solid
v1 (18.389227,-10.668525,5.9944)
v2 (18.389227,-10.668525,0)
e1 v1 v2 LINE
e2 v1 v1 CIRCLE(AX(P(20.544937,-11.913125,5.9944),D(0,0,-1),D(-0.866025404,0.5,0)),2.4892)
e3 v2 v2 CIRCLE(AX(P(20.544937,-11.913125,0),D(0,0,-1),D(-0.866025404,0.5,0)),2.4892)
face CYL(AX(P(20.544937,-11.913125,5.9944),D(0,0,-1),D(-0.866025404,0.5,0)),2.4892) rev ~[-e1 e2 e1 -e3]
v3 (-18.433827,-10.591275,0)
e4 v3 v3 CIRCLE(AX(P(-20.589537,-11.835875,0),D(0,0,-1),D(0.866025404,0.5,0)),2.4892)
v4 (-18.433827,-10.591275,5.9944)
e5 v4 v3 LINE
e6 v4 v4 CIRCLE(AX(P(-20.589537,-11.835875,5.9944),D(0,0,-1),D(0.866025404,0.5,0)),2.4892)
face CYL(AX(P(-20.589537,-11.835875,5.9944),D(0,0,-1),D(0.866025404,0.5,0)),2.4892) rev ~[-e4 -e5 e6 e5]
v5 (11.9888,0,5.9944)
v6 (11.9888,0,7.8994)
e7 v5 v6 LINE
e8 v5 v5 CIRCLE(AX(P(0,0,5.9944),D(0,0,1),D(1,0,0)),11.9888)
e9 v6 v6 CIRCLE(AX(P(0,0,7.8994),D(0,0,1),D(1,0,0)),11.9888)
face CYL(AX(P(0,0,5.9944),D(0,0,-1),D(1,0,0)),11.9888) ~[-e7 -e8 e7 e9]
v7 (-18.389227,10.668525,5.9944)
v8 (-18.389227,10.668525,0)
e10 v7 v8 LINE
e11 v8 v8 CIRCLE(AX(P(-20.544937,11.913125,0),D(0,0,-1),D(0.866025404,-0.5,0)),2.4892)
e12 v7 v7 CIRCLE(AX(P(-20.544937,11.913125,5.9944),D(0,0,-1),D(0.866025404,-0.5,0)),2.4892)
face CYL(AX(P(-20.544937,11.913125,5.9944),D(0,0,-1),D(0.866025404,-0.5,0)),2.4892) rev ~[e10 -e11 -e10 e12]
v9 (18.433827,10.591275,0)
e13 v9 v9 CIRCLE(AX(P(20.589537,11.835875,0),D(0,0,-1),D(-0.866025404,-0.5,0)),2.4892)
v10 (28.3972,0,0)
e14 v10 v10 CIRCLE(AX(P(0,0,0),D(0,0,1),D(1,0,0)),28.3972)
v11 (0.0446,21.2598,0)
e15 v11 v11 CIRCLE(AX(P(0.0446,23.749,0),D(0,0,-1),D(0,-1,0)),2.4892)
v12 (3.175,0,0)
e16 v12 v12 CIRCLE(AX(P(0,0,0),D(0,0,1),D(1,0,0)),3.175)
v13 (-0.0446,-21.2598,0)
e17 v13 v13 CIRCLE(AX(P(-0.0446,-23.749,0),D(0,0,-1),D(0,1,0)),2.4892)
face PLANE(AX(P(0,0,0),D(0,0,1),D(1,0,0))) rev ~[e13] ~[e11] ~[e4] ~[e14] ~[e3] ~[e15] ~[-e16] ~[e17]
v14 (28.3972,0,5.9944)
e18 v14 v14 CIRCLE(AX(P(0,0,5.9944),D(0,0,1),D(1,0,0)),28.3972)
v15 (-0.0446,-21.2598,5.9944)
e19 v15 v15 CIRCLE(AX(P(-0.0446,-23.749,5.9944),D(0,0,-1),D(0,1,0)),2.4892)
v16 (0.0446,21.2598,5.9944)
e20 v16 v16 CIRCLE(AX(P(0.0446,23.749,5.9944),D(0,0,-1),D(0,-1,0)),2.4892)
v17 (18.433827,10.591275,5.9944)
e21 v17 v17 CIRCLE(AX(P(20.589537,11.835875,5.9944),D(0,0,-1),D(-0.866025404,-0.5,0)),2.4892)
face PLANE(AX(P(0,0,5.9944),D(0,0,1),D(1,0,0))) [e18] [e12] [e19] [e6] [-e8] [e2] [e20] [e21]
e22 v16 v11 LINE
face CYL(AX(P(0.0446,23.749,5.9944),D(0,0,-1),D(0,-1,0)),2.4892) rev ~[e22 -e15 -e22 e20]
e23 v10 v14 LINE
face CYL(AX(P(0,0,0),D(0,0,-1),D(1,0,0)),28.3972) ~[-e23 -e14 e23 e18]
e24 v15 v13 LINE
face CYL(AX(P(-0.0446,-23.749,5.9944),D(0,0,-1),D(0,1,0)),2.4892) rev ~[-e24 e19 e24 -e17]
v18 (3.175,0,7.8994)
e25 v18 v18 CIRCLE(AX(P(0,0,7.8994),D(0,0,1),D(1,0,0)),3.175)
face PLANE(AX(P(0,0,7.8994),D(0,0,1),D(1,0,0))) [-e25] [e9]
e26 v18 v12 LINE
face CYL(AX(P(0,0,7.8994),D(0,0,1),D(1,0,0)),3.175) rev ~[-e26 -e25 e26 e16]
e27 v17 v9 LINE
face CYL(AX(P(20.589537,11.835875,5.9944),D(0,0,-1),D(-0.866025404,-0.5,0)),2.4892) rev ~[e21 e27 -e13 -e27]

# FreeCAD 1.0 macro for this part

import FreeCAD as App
import Part
import Sketcher

V = App.Vector
Q = App.Units.Quantity

doc = App.newDocument("Part")
params = doc.addObject("Spreadsheet::Sheet", "Params")
for row, (alias, value) in enumerate([
    ("sketch1_diameter", "2.236 in"),
    ("pad1_length", "0.236 in"),
    ("sketch2_diameter", "0.944 in"),
    ("pad2_length", "0.075 in"),
    ("sketch3_diameter", "0.25 in"),
    ("pocket1_length", "1 in"),
    ("sketch4_diameter", "0.196 in"),
    ("hole_diameter", "0.196 in"),
    ("hole_depth", "0.75 in"),
], start=1):
    params.set(f"A{row}", alias)
    params.set(f"B{row}", "=" + value)
    params.setAlias(f"B{row}", alias)

body = doc.addObject("PartDesign::Body", "Body")

# Sketch on XY plane
sketch1 = body.newObject("Sketcher::SketchObject", "Sketch")
sketch1.AttachmentSupport = (doc.getObject("XY_Plane"), [""])
sketch1.MapMode = "FlatFace"
sketch1.addGeometry(Part.Circle(V(0, 0, 0), V(0, 0, 1), 28), False)
sketch1.addConstraint([
    Sketcher.Constraint("Coincident", 0, 3, -1, 1),
    Sketcher.Constraint("Diameter", 0, Q("2.236 in")),
])
sketch1.setExpression("Constraints[1]", "Params.sketch1_diameter")
pad1 = body.newObject("PartDesign::Pad", "Pad")
pad1.Profile = sketch1
pad1.setExpression("Length", "Params.pad1_length")

# Sketch on XY plane
sketch2 = body.newObject("Sketcher::SketchObject", "Sketch001")
sketch2.AttachmentSupport = (doc.getObject("XY_Plane"), [""])
sketch2.MapMode = "FlatFace"
sketch2.AttachmentOffset = App.Placement(V(0, 0, 0.236 * 25.4), App.Rotation())
sketch2.addGeometry(Part.Circle(V(0, 0, 0), V(0, 0, 1), 12), False)
sketch2.addConstraint([
    Sketcher.Constraint("Coincident", 0, 3, -1, 1),
    Sketcher.Constraint("Diameter", 0, Q("0.944 in")),
])
sketch2.setExpression("Constraints[1]", "Params.sketch2_diameter")
pad2 = body.newObject("PartDesign::Pad", "Pad001")
pad2.Profile = sketch2
pad2.setExpression("Length", "Params.pad2_length")

# Sketch on XY plane
sketch3 = body.newObject("Sketcher::SketchObject", "Sketch002")
sketch3.AttachmentSupport = (doc.getObject("XY_Plane"), [""])
sketch3.MapMode = "FlatFace"
sketch3.AttachmentOffset = App.Placement(V(0, 0, 0.311 * 25.4), App.Rotation())
sketch3.addGeometry(Part.Circle(V(0, 0, 0), V(0, 0, 1), 3.2), False)
sketch3.addConstraint([
    Sketcher.Constraint("Coincident", 0, 3, -1, 1),
    Sketcher.Constraint("Diameter", 0, Q("0.25 in")),
])
sketch3.setExpression("Constraints[1]", "Params.sketch3_diameter")
pocket1 = body.newObject("PartDesign::Pocket", "Pocket")
pocket1.Profile = sketch3
pocket1.setExpression("Length", "Params.pocket1_length")

# Sketch on XY plane
sketch4 = body.newObject("Sketcher::SketchObject", "Sketch003")
sketch4.AttachmentSupport = (doc.getObject("XY_Plane"), [""])
sketch4.MapMode = "FlatFace"
sketch4.AttachmentOffset = App.Placement(V(0, 0, 0.236 * 25.4), App.Rotation())
sketch4.addGeometry(Part.Circle(V(0, 23.7, 0), V(0, 0, 1), 2.5), False)
sketch4.addConstraint([
    Sketcher.Constraint("Diameter", 0, Q("0.196 in")),
    Sketcher.Constraint("DistanceY", -1, 1, 0, 3, Q("0.935 in")),
    Sketcher.Constraint("DistanceX", -1, 1, 0, 3, Q("0.0446 mm")),
])
sketch4.setExpression("Constraints[0]", "Params.sketch4_diameter")
doc.recompute()
hole = body.newObject("PartDesign::Hole", "Hole")
hole.Profile = sketch4
hole.ThreadType = "None"
hole.setExpression("Diameter", "Params.hole_diameter")
hole.DepthType = "Dimension"
hole.setExpression("Depth", "Params.hole_depth")
hole.DrillPoint = "Angled"
hole.DrillPointAngle = 118
doc.recompute()

polarpattern = body.newObject("PartDesign::PolarPattern", "PolarPattern")
polarpattern.Originals = [hole]
polarpattern.Axis = (doc.getObject("Z_Axis"), [""])
polarpattern.Angle = 360
polarpattern.Occurrences = 6
body.Tip = polarpattern

doc.recompute()
